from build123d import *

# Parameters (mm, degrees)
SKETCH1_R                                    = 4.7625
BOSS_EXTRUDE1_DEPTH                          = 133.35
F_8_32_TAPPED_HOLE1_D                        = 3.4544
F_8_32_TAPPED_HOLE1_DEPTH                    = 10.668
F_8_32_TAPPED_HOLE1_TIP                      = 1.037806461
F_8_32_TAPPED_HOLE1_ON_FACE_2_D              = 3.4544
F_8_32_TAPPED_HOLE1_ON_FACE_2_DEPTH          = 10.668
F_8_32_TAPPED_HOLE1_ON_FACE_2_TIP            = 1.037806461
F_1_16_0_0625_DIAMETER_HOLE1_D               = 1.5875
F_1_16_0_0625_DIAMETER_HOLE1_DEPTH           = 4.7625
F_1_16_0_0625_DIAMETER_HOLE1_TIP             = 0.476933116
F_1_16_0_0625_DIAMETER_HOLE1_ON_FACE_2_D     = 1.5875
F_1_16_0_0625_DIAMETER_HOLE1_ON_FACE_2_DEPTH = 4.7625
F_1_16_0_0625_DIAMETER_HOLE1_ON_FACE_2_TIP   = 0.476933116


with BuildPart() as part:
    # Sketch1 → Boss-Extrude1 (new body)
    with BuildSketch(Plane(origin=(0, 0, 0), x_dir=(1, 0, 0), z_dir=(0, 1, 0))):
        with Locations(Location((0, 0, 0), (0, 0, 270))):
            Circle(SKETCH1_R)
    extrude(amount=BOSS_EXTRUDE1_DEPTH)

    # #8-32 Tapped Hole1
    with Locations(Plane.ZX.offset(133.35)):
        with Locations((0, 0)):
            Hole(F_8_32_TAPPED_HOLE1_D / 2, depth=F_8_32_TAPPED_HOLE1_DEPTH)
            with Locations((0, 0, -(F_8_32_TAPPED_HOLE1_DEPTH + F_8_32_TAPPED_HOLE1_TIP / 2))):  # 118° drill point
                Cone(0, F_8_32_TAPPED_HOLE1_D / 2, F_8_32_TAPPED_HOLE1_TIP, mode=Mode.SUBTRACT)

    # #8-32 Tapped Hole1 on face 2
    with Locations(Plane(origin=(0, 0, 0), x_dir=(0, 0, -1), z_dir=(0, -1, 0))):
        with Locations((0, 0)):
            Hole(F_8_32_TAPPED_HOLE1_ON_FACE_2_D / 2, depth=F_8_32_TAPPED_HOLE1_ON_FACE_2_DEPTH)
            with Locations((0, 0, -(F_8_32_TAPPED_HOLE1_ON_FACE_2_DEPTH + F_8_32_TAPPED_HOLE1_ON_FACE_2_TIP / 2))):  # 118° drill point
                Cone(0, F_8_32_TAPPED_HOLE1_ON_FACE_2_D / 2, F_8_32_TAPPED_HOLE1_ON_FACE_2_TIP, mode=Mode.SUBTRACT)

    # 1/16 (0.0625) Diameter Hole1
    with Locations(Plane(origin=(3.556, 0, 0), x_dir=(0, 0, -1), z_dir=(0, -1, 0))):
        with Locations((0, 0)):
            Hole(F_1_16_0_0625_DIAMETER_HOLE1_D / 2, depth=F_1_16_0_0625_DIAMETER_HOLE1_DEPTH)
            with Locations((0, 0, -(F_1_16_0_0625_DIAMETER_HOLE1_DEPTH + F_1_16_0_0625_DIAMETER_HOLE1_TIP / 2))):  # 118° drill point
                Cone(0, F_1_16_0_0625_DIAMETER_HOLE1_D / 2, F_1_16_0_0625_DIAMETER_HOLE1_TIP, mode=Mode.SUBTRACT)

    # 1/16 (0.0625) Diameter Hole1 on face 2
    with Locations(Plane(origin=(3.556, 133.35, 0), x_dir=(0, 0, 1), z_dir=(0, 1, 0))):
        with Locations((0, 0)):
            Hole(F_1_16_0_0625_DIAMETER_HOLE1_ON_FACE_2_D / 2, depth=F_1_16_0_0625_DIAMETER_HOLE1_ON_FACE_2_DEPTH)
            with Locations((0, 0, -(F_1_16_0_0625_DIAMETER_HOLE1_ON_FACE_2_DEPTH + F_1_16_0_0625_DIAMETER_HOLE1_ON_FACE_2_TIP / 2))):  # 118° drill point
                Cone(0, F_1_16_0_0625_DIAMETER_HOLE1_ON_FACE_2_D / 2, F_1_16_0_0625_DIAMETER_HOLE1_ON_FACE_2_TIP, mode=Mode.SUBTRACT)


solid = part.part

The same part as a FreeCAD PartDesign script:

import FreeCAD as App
import Part
import Sketcher
from FreeCAD import Vector
Q = App.Units.Quantity

doc = App.newDocument("Part")
body = doc.addObject("PartDesign::Body", "Body")

sketch1 = body.newObject("Sketcher::SketchObject", "Sketch")
sketch1.AttachmentSupport = (doc.getObject("XZ_Plane"), [""])
sketch1.MapMode = "FlatFace"
sketch1.addGeometry(Part.Circle(Vector(0, 0, 0), Vector(0, 0, 1), 4.8), False)
sketch1.addConstraint([
    Sketcher.Constraint("Coincident", 0, 3, -1, 1),
    Sketcher.Constraint("Diameter", 0, Q("0.375 in")),
])
pad1 = body.newObject("PartDesign::Pad", "Pad")
pad1.Profile = sketch1
pad1.Length = Q("5.25 in")
pad1.Reversed = True

sketch2 = body.newObject("Sketcher::SketchObject", "Sketch001")
sketch2.AttachmentSupport = (doc.getObject("XZ_Plane"), [""])
sketch2.MapMode = "FlatFace"
sketch2.AttachmentOffset = App.Placement(Vector(0, 0, -5.25 * 25.4), App.Rotation())
sketch2.addGeometry(Part.Circle(Vector(0, 0, 0), Vector(0, 0, 1), 1.7), False)
sketch2.addConstraint([
    Sketcher.Constraint("Coincident", 0, 3, -1, 1),
    Sketcher.Constraint("Diameter", 0, Q("0.136 in")),
])
doc.recompute()
hole = body.newObject("PartDesign::Hole", "Hole")
hole.Profile = sketch2
hole.ThreadType = "None"
hole.Diameter = Q("0.136 in")
hole.DepthType = "Dimension"
hole.Depth = Q("0.42 in")
hole.DrillPoint = "Angled"
hole.DrillPointAngle = 118
hole.Reversed = True

sketch3 = body.newObject("Sketcher::SketchObject", "Sketch002")
sketch3.AttachmentSupport = (doc.getObject("XZ_Plane"), [""])
sketch3.MapMode = "FlatFace"
sketch3.addGeometry(Part.Circle(Vector(0, 0, 0), Vector(0, 0, 1), 1.7), False)
sketch3.addConstraint([
    Sketcher.Constraint("Coincident", 0, 3, -1, 1),
    Sketcher.Constraint("Diameter", 0, Q("0.136 in")),
])
doc.recompute()
hole2 = body.newObject("PartDesign::Hole", "Hole001")
hole2.Profile = sketch3
hole2.ThreadType = "None"
hole2.Diameter = Q("0.136 in")
hole2.DepthType = "Dimension"
hole2.Depth = Q("0.42 in")
hole2.DrillPoint = "Angled"
hole2.DrillPointAngle = 118

sketch4 = body.newObject("Sketcher::SketchObject", "Sketch003")
sketch4.AttachmentSupport = (doc.getObject("XZ_Plane"), [""])
sketch4.MapMode = "FlatFace"
sketch4.addGeometry(Part.Circle(Vector(3.6, 0, 0), Vector(0, 0, 1), 0.8), False)
sketch4.addConstraint([
    Sketcher.Constraint("PointOnObject", 0, 3, -1),
    Sketcher.Constraint("Diameter", 0, Q("0.0625 in")),
    Sketcher.Constraint("DistanceX", -1, 1, 0, 3, Q("0.14 in")),
])
doc.recompute()
hole3 = body.newObject("PartDesign::Hole", "Hole002")
hole3.Profile = sketch4
hole3.ThreadType = "None"
hole3.Diameter = Q("0.0625 in")
hole3.DepthType = "Dimension"
hole3.Depth = Q("0.1875 in")
hole3.DrillPoint = "Angled"
hole3.DrillPointAngle = 118

sketch5 = body.newObject("Sketcher::SketchObject", "Sketch004")
sketch5.AttachmentSupport = (doc.getObject("XZ_Plane"), [""])
sketch5.MapMode = "FlatFace"
sketch5.AttachmentOffset = App.Placement(Vector(0, 0, -5.25 * 25.4), App.Rotation())
sketch5.addGeometry(Part.Circle(Vector(3.6, 0, 0), Vector(0, 0, 1), 0.8), False)
sketch5.addConstraint([
    Sketcher.Constraint("PointOnObject", 0, 3, -1),
    Sketcher.Constraint("Diameter", 0, Q("0.0625 in")),
    Sketcher.Constraint("DistanceX", -1, 1, 0, 3, Q("0.14 in")),
])
doc.recompute()
hole4 = body.newObject("PartDesign::Hole", "Hole003")
hole4.Profile = sketch5
hole4.ThreadType = "None"
hole4.Diameter = Q("0.0625 in")
hole4.DepthType = "Dimension"
hole4.Depth = Q("0.1875 in")
hole4.DrillPoint = "Angled"
hole4.DrillPointAngle = 118
hole4.Reversed = True

doc.recompute()
